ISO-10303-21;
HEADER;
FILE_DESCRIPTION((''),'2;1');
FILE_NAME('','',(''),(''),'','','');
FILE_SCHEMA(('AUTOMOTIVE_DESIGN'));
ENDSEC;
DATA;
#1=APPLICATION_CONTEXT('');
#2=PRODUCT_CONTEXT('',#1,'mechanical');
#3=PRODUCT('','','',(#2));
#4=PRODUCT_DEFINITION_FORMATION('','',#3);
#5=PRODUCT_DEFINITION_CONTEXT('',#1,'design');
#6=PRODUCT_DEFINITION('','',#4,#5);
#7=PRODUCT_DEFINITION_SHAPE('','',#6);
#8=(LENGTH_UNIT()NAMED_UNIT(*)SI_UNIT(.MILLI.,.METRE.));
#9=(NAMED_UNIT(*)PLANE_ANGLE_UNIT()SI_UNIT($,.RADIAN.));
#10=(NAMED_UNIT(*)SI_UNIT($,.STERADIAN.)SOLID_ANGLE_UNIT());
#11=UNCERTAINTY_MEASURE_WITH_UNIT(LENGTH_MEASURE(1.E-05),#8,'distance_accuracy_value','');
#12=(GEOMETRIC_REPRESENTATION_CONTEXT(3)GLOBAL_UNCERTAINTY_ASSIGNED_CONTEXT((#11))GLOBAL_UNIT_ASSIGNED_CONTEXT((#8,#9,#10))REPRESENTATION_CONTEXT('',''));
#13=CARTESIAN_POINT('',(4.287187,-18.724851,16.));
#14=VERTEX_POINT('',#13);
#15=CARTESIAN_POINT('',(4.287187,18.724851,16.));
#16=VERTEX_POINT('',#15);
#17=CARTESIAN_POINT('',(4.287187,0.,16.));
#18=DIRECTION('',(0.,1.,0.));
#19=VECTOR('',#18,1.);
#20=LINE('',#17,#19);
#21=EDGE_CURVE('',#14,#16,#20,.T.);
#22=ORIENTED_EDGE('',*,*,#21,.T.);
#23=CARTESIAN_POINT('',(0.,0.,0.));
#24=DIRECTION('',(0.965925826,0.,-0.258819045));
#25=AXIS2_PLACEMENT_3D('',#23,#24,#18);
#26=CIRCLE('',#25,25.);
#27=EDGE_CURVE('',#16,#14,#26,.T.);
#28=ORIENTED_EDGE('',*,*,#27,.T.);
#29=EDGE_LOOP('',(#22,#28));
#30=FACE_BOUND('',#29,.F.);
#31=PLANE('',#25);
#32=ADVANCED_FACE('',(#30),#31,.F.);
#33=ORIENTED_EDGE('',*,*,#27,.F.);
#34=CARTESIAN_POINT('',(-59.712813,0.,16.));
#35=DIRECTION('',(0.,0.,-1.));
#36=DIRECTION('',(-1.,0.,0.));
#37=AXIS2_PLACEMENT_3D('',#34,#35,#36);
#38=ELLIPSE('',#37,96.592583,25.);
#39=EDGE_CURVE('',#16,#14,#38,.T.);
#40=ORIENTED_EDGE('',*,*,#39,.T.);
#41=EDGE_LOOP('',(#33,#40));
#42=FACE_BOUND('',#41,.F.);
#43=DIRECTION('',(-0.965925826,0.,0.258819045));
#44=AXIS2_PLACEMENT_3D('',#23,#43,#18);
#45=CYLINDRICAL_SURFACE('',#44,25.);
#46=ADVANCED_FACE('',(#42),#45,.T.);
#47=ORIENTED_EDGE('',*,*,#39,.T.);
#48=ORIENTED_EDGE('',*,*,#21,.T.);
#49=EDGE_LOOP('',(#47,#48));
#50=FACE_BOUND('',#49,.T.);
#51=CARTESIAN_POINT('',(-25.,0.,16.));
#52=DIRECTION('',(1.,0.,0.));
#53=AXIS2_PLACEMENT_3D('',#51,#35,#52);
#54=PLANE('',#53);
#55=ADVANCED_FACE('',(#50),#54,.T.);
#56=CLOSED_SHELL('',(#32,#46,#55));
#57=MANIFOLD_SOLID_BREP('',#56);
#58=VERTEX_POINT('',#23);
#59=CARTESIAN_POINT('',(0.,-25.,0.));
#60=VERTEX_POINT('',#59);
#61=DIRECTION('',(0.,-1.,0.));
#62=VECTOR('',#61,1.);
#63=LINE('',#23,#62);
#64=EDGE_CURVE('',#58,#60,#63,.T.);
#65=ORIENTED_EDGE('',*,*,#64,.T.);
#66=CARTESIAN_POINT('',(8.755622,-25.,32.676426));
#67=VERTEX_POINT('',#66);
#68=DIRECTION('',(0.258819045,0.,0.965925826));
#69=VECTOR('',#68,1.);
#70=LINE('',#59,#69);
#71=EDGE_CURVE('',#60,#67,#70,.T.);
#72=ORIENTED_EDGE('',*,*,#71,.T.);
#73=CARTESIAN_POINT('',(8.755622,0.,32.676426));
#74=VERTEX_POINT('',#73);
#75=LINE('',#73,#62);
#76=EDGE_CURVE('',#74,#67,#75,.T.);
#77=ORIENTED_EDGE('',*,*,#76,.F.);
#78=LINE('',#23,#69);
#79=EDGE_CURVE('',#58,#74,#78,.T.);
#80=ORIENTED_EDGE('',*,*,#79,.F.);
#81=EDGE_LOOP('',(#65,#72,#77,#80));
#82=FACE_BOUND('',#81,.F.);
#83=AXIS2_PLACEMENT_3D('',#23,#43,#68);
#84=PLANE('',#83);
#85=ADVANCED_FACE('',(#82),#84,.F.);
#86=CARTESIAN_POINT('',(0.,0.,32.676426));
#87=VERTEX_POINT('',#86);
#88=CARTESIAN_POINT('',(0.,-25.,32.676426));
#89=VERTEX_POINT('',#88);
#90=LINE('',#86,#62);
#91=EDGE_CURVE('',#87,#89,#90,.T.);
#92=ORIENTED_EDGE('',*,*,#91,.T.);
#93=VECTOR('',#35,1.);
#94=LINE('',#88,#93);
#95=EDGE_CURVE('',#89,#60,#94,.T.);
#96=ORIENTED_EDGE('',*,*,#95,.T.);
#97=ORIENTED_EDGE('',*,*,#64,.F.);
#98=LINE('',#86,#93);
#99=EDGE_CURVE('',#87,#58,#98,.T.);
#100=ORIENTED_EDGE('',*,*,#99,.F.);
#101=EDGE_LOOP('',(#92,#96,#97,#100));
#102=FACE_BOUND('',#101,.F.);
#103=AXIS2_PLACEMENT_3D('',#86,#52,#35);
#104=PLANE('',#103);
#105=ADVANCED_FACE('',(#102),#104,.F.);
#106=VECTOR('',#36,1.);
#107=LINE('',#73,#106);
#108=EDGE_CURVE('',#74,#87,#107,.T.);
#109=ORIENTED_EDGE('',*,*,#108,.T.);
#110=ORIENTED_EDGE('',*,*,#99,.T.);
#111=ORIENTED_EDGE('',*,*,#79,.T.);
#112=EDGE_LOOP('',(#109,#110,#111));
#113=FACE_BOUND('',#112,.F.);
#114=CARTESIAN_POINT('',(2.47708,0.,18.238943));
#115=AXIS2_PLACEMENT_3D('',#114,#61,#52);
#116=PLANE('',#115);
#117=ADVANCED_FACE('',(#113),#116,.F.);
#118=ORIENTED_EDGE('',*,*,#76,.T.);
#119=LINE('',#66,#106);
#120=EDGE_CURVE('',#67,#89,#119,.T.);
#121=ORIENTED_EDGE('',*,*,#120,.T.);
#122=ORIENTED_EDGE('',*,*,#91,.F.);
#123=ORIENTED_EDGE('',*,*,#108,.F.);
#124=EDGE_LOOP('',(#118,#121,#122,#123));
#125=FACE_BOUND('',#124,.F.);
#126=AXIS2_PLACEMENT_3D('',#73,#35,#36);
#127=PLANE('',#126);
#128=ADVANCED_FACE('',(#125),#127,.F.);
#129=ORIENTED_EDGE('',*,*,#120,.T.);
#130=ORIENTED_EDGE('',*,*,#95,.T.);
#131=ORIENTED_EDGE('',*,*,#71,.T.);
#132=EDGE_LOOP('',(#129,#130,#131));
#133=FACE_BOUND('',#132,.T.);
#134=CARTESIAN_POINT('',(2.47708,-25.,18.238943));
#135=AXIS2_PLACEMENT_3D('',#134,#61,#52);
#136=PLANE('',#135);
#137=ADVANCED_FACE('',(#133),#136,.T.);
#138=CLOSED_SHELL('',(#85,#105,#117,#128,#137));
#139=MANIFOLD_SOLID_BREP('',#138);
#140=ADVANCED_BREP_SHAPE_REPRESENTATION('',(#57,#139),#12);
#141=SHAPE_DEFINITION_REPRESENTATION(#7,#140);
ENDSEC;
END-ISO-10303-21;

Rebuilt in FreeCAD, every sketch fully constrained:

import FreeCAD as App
import Part
import Sketcher

V = App.Vector
Q = App.Units.Quantity

doc = App.newDocument("Part")
body = doc.addObject("PartDesign::Body", "Body")

sketch1 = body.newObject("Sketcher::SketchObject", "Sketch")
sketch1.AttachmentSupport = (doc.getObject("XZ_Plane"), [""])
sketch1.MapMode = "FlatFace"
sketch1.addGeometry(Part.LineSegment(V(0, 33, 0), V(0, 0, 0)), False)
sketch1.addGeometry(Part.LineSegment(V(0, 0, 0), V(9, 33, 0)), False)
sketch1.addGeometry(Part.LineSegment(V(9, 33, 0), V(0, 33, 0)), False)
sketch1.addConstraint(Sketcher.Constraint("Coincident", 0, 2, 1, 1))
sketch1.addConstraint(Sketcher.Constraint("Coincident", 1, 2, 2, 1))
sketch1.addConstraint(Sketcher.Constraint("Coincident", 2, 2, 0, 1))
sketch1.addConstraint(Sketcher.Constraint("Vertical", 0))
sketch1.addConstraint(Sketcher.Constraint("Horizontal", 2))
sketch1.addConstraint(Sketcher.Constraint("Coincident", 0, 2, -1, 1))
sketch1.addConstraint(Sketcher.Constraint("Angle", 1, Q("75 deg")))
sketch1.addConstraint(Sketcher.Constraint("DistanceX", 2, 2, 2, 1, 8.755622))
pad1 = body.newObject("PartDesign::Pad", "Pad")
pad1.Profile = sketch1
pad1.Length = 25
body2 = doc.addObject("PartDesign::Body", "Body001")

sketch2 = body2.newObject("Sketcher::SketchObject", "Sketch001")
sketch2.Placement = App.Placement(V(0, 0, 0), App.Rotation(V(0, 1, 0), V(0.258819045, 0, 0.965925826), V(0.965925826, 0, -0.258819045), "ZXY"))
sketch2.addGeometry(Part.Circle(V(0, 0, 0), V(0, 0, 1), 25), False)
sketch2.addConstraint(Sketcher.Constraint("Coincident", 0, 3, -1, 1))
sketch2.addConstraint(Sketcher.Constraint("Diameter", 0, 50.0))
pad2 = body2.newObject("PartDesign::Pad", "Pad001")
pad2.Profile = sketch2
pad2.Length = 50
body3 = doc.addObject("PartDesign::Body", "Body002")

sketch3 = body3.newObject("Sketcher::SketchObject", "Sketch002")
sketch3.AttachmentSupport = (doc.getObject("XZ_Plane002"), [""])
sketch3.MapMode = "FlatFace"
sketch3.addGeometry(Part.LineSegment(V(-25, 16, 0), V(-25, -74, 0)), False)
sketch3.addGeometry(Part.LineSegment(V(-25, -74, 0), V(65, -74, 0)), False)
sketch3.addGeometry(Part.LineSegment(V(65, -74, 0), V(65, 16, 0)), False)
sketch3.addGeometry(Part.LineSegment(V(65, 16, 0), V(-25, 16, 0)), False)
sketch3.addConstraint(Sketcher.Constraint("Coincident", 0, 2, 1, 1))
sketch3.addConstraint(Sketcher.Constraint("Coincident", 1, 2, 2, 1))
sketch3.addConstraint(Sketcher.Constraint("Coincident", 2, 2, 3, 1))
sketch3.addConstraint(Sketcher.Constraint("Coincident", 3, 2, 0, 1))
sketch3.addConstraint(Sketcher.Constraint("Vertical", 0))
sketch3.addConstraint(Sketcher.Constraint("Horizontal", 1))
sketch3.addConstraint(Sketcher.Constraint("Vertical", 2))
sketch3.addConstraint(Sketcher.Constraint("Horizontal", 3))
sketch3.addConstraint(Sketcher.Constraint("Equal", 3, 0))
sketch3.addConstraint(Sketcher.Constraint("DistanceX", 1, 1, 1, 2, 90.0))
sketch3.addConstraint(Sketcher.Constraint("DistanceX", 0, 2, -1, 1, 25.0))
sketch3.addConstraint(Sketcher.Constraint("DistanceY", 0, 2, -1, 1, 74.0))
pad3 = body3.newObject("PartDesign::Pad", "Pad002")
pad3.Profile = sketch3
pad3.Length = 75
pad3.Midplane = True
doc.recompute()

boolean = body2.newObject("PartDesign::Boolean", "Boolean")
boolean.Type = "Cut"
boolean.addObjects([body3])

doc.recompute()
